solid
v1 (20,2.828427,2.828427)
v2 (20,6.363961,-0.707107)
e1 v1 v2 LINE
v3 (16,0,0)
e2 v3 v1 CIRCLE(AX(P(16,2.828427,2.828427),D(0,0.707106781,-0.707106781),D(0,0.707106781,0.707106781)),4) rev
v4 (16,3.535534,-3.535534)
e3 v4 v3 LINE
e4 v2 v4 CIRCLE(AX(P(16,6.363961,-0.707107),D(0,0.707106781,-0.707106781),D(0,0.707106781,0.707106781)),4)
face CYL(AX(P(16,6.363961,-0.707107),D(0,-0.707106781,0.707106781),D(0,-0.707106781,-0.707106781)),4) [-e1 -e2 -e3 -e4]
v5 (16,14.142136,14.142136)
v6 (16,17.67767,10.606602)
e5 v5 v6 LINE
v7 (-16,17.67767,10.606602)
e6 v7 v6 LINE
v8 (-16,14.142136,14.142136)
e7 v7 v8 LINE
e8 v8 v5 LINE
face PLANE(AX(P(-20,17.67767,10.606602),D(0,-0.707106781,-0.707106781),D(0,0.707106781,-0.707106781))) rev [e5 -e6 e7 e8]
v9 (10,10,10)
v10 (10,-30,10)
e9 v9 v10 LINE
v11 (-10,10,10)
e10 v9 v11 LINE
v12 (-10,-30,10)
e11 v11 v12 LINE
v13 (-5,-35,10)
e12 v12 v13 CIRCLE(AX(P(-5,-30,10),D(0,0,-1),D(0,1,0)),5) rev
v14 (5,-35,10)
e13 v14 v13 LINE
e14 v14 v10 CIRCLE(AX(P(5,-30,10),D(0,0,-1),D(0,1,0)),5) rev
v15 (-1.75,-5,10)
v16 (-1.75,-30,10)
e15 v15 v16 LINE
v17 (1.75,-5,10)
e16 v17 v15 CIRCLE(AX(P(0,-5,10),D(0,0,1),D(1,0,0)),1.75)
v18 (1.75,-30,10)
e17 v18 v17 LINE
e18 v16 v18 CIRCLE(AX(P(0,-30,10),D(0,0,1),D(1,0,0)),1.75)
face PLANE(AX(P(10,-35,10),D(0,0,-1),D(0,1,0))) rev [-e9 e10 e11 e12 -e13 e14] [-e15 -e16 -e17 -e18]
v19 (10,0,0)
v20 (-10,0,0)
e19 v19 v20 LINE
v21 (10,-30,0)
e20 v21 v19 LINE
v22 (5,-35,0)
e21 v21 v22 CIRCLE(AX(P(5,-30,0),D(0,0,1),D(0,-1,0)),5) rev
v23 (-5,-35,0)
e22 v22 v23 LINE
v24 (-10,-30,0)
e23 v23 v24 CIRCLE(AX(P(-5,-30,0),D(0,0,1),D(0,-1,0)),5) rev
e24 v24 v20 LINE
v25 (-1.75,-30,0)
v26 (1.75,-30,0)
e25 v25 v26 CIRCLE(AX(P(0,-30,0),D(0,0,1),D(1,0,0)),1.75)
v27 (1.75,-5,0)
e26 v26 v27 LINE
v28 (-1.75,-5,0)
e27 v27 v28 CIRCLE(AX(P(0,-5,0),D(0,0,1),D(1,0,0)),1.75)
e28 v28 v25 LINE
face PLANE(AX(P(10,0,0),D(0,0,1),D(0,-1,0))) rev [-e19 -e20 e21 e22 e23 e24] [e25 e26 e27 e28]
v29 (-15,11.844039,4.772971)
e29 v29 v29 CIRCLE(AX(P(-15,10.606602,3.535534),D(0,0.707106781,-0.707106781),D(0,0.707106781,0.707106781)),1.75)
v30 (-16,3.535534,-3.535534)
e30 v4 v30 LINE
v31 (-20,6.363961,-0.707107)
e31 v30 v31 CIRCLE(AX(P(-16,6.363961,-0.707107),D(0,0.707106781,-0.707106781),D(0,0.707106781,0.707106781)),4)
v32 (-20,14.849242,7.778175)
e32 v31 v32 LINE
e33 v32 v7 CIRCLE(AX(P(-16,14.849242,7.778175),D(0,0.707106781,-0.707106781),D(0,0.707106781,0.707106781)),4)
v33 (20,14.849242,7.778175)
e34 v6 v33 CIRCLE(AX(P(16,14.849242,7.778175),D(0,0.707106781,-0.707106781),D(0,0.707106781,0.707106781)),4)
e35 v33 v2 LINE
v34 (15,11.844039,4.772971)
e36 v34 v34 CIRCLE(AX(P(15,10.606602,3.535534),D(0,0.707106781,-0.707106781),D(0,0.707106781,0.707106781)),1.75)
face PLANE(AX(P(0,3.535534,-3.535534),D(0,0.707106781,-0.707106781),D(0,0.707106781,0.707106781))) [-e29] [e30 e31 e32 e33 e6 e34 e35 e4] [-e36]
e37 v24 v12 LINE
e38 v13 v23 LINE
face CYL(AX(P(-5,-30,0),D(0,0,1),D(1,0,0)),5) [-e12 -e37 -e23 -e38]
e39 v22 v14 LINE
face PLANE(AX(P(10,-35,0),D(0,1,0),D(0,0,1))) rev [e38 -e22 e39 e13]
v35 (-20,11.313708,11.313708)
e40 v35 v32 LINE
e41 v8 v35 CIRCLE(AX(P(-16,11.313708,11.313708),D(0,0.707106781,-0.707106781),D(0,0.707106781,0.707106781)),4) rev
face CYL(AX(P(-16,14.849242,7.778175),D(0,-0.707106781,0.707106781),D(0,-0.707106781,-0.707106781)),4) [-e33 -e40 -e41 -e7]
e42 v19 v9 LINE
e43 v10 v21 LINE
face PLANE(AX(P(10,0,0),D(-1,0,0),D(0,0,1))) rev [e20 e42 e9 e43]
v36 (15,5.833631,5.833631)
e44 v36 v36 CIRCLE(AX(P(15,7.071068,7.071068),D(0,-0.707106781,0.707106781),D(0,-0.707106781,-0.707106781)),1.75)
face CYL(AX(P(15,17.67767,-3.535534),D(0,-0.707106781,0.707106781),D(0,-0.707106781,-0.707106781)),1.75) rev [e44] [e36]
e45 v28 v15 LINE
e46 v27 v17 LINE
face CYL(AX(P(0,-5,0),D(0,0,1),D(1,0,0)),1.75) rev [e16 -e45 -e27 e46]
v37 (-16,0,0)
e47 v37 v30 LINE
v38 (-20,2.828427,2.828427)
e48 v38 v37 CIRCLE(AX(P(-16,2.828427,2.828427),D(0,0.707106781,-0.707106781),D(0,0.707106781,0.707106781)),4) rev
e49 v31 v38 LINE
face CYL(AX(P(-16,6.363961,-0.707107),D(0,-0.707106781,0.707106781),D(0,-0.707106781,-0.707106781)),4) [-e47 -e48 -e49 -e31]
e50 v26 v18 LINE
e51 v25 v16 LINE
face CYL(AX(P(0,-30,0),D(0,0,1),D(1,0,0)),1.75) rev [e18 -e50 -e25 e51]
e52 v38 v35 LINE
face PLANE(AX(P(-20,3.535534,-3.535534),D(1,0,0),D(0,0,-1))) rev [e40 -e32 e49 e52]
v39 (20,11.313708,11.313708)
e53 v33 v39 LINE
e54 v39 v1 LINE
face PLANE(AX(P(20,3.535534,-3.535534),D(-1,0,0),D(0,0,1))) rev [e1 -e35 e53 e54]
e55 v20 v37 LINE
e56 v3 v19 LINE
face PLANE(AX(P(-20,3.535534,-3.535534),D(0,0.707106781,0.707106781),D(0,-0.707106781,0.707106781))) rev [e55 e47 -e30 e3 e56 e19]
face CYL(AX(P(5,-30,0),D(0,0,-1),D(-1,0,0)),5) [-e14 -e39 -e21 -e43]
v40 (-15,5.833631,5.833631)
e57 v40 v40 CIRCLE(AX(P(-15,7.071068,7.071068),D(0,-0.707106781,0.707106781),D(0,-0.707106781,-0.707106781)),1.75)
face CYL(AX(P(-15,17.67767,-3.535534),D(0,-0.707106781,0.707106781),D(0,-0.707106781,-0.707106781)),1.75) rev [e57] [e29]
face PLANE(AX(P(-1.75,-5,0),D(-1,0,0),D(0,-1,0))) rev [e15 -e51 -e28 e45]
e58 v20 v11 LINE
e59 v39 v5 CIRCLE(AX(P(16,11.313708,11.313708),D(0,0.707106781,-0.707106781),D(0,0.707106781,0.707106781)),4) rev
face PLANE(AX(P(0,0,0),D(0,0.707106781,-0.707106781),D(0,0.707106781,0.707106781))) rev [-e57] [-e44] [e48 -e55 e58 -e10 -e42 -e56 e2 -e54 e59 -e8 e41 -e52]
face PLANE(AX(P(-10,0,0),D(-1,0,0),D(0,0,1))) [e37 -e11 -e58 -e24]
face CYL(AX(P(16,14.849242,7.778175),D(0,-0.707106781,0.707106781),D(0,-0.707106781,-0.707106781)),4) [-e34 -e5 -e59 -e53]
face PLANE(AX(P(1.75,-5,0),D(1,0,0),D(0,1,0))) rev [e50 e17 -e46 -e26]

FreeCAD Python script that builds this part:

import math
import FreeCAD as App
import Part
import Sketcher

V = App.Vector
Q = App.Units.Quantity


def edges_at(feature, points):
    """Names of the edges that pass closest to the given points."""
    edges = feature.Shape.Edges
    near = lambda p: min(range(len(edges)), key=lambda i: edges[i].distToShape(Part.Vertex(*p))[0])
    return sorted({f"Edge{near(p) + 1}" for p in points})


def add_polygon(sketch, points):
    """Adds a closed chain of lines whose ends are joined by coincident constraints."""
    first, n = sketch.GeometryCount, len(points)
    for a, b in zip(points, points[1:] + points[:1]):
        sketch.addGeometry(Part.LineSegment(App.Vector(*a, 0), App.Vector(*b, 0)), False)
    for i in range(n):
        sketch.addConstraint(Sketcher.Constraint("Coincident", first + i, 2, first + (i + 1) % n, 1))

doc = App.newDocument("Part")
params = doc.addObject("Spreadsheet::Sheet", "Params")
for row, (alias, value) in enumerate([
    ("sketch1_width", "35 mm"),
    ("sketch1_width2", "45 mm"),
    ("sketch1_height", "10 mm"),
    ("pad1_length", "20 mm"),
    ("sketch2_height", "25 mm"),
    ("sketch2_radius", "1.75 mm"),
    ("fillet_radius", "5 mm"),
    ("sketch3_width", "40 mm"),
    ("sketch3_height", "20 mm"),
    ("pad2_length", "5 mm"),
    ("sketch4_diameter", "3.5 mm"),
    ("fillet2_radius", "4 mm"),
], start=1):
    params.set(f"A{row}", alias)
    params.set(f"B{row}", "=" + value)
    params.setAlias(f"B{row}", alias)

body = doc.addObject("PartDesign::Body", "Body")

sketch1 = body.newObject("Sketcher::SketchObject", "Sketch")
sketch1.AttachmentSupport = (doc.getObject("YZ_Plane"), [""])
sketch1.MapMode = "FlatFace"
add_polygon(sketch1, [(-35, 0), (0, 0), (10, 10), (-35, 10)])
sketch1.addConstraint(Sketcher.Constraint("Horizontal", 0))
sketch1.addConstraint(Sketcher.Constraint("Horizontal", 2))
sketch1.addConstraint(Sketcher.Constraint("Vertical", 3))
sketch1.addConstraint(Sketcher.Constraint("Coincident", 0, 2, -1, 1))
sketch1.addConstraint(Sketcher.Constraint("DistanceX", 0, 1, 0, 2, Q("35 mm")))
sketch1.addConstraint(Sketcher.Constraint("DistanceX", 2, 2, 2, 1, Q("45 mm")))
sketch1.addConstraint(Sketcher.Constraint("DistanceY", 3, 2, 3, 1, Q("10 mm")))
sketch1.setExpression("Constraints[8]", "Params.sketch1_width")
sketch1.setExpression("Constraints[9]", "Params.sketch1_width2")
sketch1.setExpression("Constraints[10]", "Params.sketch1_height")
pad1 = body.newObject("PartDesign::Pad", "Pad")
pad1.Profile = sketch1
pad1.setExpression("Length", "Params.pad1_length")
pad1.Midplane = True

sketch2 = body.newObject("Sketcher::SketchObject", "Sketch001")
sketch2.AttachmentSupport = (doc.getObject("XY_Plane"), [""])
sketch2.MapMode = "FlatFace"
sketch2.AttachmentOffset = App.Placement(V(0, 0, 10), App.Rotation())
sketch2.addGeometry(Part.LineSegment(V(1.8, -30, 0), V(1.8, -5, 0)), False)
sketch2.addGeometry(Part.ArcOfCircle(Part.Circle(V(0, -5, 0), V(0, 0, 1), 1.8), math.radians(0), math.radians(180)), False)
sketch2.addGeometry(Part.LineSegment(V(-1.8, -5, 0), V(-1.8, -30, 0)), False)
sketch2.addGeometry(Part.ArcOfCircle(Part.Circle(V(0, -30, 0), V(0, 0, 1), 1.8), math.radians(180), math.radians(360)), False)
sketch2.addConstraint(Sketcher.Constraint("Tangent", 0, 2, 1, 1))
sketch2.addConstraint(Sketcher.Constraint("Tangent", 1, 2, 2, 1))
sketch2.addConstraint(Sketcher.Constraint("Tangent", 2, 2, 3, 1))
sketch2.addConstraint(Sketcher.Constraint("Tangent", 3, 2, 0, 1))
sketch2.addConstraint(Sketcher.Constraint("Vertical", 0))
sketch2.addConstraint(Sketcher.Constraint("Vertical", 2))
sketch2.addConstraint(Sketcher.Constraint("PointOnObject", 1, 3, -2))
sketch2.addConstraint(Sketcher.Constraint("DistanceY", 0, 1, 0, 2, Q("25 mm")))
sketch2.addConstraint(Sketcher.Constraint("Radius", 1, Q("1.75 mm")))
sketch2.addConstraint(Sketcher.Constraint("DistanceY", 1, 3, -1, 1, Q("5 mm")))
sketch2.setExpression("Constraints[7]", "Params.sketch2_height")
sketch2.setExpression("Constraints[8]", "Params.sketch2_radius")
pocket1 = body.newObject("PartDesign::Pocket", "Pocket")
pocket1.Profile = sketch2
pocket1.Type = "ThroughAll"
doc.recompute()

fillet = body.newObject("PartDesign::Fillet", "Fillet")
fillet.Base = (pocket1, edges_at(pocket1, [(10, -35, 5), (-10, -35, 5)]))
fillet.setExpression("Radius", "Params.fillet_radius")

sketch3 = body.newObject("Sketcher::SketchObject", "Sketch002")
sketch3.Placement = App.Placement(V(0, 0, 0), App.Rotation(V(1, 0, 0), V(0, -0.707106781, -0.707106781), V(0, 0.707106781, -0.707106781), "ZXY"))
add_polygon(sketch3, [(-20, 0), (-20, -20), (20, -20), (20, 0)])
sketch3.addConstraint(Sketcher.Constraint("Vertical", 0))
sketch3.addConstraint(Sketcher.Constraint("Horizontal", 1))
sketch3.addConstraint(Sketcher.Constraint("Vertical", 2))
sketch3.addConstraint(Sketcher.Constraint("Horizontal", 3))
sketch3.addConstraint(Sketcher.Constraint("Symmetric", 2, 2, 3, 2, -1, 1))
sketch3.addConstraint(Sketcher.Constraint("DistanceX", 1, 1, 1, 2, Q("40 mm")))
sketch3.addConstraint(Sketcher.Constraint("DistanceY", 0, 2, 0, 1, Q("20 mm")))
sketch3.setExpression("Constraints[9]", "Params.sketch3_width")
sketch3.setExpression("Constraints[10]", "Params.sketch3_height")
pad2 = body.newObject("PartDesign::Pad", "Pad001")
pad2.Profile = sketch3
pad2.setExpression("Length", "Params.pad2_length")

sketch4 = body.newObject("Sketcher::SketchObject", "Sketch003")
sketch4.Placement = App.Placement(V(0, 0, 0), App.Rotation(V(1, 0, 0), V(0, 0.707106781, 0.707106781), V(0, -0.707106781, 0.707106781), "ZXY"))
sketch4.addGeometry(Part.Circle(V(-15, 10, 0), V(0, 0, 1), 1.8), False)
sketch4.addGeometry(Part.Circle(V(15, 10, 0), V(0, 0, 1), 1.8), False)
sketch4.addConstraint(Sketcher.Constraint("Equal", 0, 1))
sketch4.addConstraint(Sketcher.Constraint("Symmetric", 0, 3, 1, 3, -2))
sketch4.addConstraint(Sketcher.Constraint("Diameter", 0, Q("3.5 mm")))
sketch4.addConstraint(Sketcher.Constraint("DistanceX", 0, 3, -1, 1, Q("15 mm")))
sketch4.addConstraint(Sketcher.Constraint("DistanceY", -1, 1, 0, 3, Q("10 mm")))
sketch4.setExpression("Constraints[2]", "Params.sketch4_diameter")
pocket2 = body.newObject("PartDesign::Pocket", "Pocket001")
pocket2.Profile = sketch4
pocket2.Type = "ThroughAll"
doc.recompute()

fillet2 = body.newObject("PartDesign::Fillet", "Fillet001")
fillet2.Base = (pocket2, edges_at(pocket2, [
    (-20, 1.768, -1.768),
    (-20, 15.91, 12.374),
    (20, 15.91, 12.374),
    (20, 1.768, -1.768),
]))
fillet2.setExpression("Radius", "Params.fillet2_radius")

doc.recompute()
